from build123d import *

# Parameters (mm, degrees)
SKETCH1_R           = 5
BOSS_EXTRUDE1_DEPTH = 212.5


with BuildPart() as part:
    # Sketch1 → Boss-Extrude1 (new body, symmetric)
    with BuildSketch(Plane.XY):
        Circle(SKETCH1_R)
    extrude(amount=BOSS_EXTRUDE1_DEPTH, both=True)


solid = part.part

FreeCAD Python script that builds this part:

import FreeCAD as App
import Part
import Sketcher

doc = App.newDocument("Part")
body = doc.addObject("PartDesign::Body", "Body")

# Sketch on XY plane
sketch1 = doc.addObject("Sketcher::SketchObject", "Sketch")
body.addObject(sketch1)
sketch1.AttachmentSupport = (doc.XY_Plane, [""])
sketch1.MapMode = "FlatFace"
sketch1.addGeometry(Part.Circle(App.Vector(0, 0, 0), App.Vector(0, 0, 1), 5), False)
sketch1.addConstraint([
    Sketcher.Constraint("Coincident", 0, 3, -1, 1),
    Sketcher.Constraint("Diameter", 0, 10.0),
])
pad1 = doc.addObject("PartDesign::Pad", "Pad")
body.addObject(pad1)
pad1.Profile = sketch1
pad1.Length = 425
pad1.Midplane = True

doc.recompute()
